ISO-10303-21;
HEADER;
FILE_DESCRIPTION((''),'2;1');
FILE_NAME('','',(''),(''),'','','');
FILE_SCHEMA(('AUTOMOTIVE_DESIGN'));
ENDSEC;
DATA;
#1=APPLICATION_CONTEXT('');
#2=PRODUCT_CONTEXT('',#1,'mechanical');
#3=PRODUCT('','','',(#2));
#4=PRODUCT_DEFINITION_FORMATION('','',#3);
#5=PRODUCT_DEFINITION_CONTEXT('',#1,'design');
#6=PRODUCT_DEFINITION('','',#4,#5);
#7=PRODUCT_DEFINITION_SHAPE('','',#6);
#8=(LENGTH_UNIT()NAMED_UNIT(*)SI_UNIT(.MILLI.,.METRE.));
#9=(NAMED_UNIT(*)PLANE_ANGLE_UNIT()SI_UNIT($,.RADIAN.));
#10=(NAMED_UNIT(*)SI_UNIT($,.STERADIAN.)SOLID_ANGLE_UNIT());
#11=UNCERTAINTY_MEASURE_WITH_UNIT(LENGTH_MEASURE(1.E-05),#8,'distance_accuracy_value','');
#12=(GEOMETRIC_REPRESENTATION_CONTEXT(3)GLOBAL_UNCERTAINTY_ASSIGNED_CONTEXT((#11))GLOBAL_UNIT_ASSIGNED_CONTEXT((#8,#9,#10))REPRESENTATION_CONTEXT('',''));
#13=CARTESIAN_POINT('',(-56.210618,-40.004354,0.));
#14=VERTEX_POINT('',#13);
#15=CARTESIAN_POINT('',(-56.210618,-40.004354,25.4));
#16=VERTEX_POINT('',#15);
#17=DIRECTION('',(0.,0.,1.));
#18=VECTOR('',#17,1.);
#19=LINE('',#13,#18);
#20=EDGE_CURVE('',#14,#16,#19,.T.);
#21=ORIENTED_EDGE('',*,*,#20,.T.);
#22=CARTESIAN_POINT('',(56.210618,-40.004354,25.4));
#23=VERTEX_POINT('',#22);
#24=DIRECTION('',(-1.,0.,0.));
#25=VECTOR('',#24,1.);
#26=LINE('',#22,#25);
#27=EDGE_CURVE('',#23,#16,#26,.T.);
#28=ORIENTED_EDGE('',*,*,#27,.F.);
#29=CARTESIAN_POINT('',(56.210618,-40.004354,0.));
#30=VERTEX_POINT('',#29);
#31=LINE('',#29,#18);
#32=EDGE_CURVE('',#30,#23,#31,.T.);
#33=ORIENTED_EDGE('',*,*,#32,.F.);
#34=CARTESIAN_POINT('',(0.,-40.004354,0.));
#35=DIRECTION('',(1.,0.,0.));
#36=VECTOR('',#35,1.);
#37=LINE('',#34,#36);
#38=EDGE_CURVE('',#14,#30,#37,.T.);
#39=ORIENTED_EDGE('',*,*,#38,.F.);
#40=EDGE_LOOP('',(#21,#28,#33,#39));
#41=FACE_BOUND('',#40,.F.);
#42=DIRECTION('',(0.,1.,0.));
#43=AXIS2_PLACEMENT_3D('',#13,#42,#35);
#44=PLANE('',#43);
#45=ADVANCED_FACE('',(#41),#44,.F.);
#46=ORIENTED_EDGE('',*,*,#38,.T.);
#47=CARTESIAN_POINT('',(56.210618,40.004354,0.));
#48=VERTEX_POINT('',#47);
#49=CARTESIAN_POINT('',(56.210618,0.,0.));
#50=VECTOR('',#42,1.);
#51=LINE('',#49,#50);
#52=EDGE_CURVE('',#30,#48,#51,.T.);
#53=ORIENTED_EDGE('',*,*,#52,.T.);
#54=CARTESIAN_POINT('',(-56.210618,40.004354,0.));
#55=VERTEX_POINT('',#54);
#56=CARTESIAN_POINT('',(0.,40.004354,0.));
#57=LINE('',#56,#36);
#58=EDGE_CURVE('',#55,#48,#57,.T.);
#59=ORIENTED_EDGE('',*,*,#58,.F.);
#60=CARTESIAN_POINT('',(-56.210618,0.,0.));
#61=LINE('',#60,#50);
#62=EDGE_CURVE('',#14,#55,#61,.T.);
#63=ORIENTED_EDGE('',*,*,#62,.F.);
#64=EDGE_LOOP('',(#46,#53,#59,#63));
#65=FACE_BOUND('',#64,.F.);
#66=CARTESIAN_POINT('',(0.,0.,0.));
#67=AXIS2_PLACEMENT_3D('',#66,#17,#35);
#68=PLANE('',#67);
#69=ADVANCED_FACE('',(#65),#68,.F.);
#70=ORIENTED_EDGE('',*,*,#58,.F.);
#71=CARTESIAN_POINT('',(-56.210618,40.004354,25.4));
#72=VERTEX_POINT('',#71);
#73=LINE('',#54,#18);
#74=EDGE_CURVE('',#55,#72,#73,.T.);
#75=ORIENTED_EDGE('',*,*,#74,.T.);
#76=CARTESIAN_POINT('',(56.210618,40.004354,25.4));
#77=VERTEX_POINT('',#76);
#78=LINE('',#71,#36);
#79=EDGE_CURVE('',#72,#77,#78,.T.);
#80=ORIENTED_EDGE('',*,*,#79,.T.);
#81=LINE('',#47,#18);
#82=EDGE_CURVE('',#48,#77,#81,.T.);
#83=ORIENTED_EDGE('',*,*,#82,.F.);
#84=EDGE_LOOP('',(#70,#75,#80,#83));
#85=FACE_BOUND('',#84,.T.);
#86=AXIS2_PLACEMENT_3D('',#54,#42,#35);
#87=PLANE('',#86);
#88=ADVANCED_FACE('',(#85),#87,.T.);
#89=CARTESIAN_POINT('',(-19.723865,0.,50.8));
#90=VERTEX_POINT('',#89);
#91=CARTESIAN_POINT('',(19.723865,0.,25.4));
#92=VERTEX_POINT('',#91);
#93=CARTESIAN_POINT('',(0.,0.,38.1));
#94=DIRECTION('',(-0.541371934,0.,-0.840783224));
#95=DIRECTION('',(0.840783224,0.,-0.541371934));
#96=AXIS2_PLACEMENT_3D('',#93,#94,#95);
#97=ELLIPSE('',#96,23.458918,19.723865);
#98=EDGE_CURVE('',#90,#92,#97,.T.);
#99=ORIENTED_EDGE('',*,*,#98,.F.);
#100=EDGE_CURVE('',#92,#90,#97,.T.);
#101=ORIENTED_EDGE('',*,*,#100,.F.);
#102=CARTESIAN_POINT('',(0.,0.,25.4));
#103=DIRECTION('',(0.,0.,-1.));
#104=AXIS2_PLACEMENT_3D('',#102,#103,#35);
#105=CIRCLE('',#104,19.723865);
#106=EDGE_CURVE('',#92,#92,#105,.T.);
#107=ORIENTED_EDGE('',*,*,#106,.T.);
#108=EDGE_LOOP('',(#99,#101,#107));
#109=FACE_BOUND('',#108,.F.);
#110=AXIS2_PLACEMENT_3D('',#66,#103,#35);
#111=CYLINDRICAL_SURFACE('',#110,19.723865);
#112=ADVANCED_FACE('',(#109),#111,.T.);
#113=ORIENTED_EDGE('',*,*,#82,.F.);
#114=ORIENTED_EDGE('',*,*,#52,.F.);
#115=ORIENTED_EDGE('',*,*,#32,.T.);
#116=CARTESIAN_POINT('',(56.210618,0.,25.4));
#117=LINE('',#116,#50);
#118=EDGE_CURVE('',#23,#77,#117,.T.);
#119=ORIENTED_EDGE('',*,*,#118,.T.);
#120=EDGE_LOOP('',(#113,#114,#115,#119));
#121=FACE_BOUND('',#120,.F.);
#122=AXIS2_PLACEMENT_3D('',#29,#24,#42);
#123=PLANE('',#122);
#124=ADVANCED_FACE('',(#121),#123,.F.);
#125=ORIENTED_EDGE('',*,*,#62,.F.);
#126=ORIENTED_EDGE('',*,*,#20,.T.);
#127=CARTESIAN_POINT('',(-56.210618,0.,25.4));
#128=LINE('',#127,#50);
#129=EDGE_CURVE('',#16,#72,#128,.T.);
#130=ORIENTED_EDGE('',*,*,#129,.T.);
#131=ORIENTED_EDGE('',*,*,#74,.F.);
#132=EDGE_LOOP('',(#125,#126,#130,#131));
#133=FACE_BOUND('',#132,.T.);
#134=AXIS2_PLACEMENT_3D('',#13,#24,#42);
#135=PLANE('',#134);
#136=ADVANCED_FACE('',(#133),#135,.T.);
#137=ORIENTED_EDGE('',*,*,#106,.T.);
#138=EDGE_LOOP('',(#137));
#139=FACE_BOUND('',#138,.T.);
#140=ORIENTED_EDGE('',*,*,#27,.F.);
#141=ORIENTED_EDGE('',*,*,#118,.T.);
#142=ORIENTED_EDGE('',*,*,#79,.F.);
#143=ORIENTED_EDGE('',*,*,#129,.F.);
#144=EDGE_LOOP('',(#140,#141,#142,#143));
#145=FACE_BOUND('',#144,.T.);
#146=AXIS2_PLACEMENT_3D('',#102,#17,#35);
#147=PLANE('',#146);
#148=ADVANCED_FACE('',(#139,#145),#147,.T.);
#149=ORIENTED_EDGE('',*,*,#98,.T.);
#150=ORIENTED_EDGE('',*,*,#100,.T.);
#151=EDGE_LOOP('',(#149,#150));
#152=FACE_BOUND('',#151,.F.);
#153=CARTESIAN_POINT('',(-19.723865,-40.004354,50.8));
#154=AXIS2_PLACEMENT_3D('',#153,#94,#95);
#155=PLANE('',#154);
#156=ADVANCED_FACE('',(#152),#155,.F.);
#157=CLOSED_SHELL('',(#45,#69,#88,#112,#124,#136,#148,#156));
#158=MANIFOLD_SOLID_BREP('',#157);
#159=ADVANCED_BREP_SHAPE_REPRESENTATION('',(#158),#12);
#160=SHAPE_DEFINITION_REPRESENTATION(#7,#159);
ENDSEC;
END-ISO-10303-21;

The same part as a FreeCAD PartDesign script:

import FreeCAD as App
import Part
import Sketcher
Q = App.Units.Quantity


def add_polygon(sketch, points):
    """Adds a closed chain of lines whose ends are joined by coincident constraints."""
    first, n = sketch.GeometryCount, len(points)
    for a, b in zip(points, points[1:] + points[:1]):
        sketch.addGeometry(Part.LineSegment(App.Vector(*a, 0), App.Vector(*b, 0)), False)
    for i in range(n):
        sketch.addConstraint(Sketcher.Constraint("Coincident", first + i, 2, first + (i + 1) % n, 1))

doc = App.newDocument("Part")
body = doc.addObject("PartDesign::Body", "Body")

sketch1 = body.newObject("Sketcher::SketchObject", "Sketch")
sketch1.AttachmentSupport = (doc.getObject("XY_Plane"), [""])
sketch1.MapMode = "FlatFace"
add_polygon(sketch1, [(-56, 40), (-56, -40), (56, -40), (56, 40)])
sketch1.addConstraint([
    Sketcher.Constraint("Vertical", 0),
    Sketcher.Constraint("Horizontal", 1),
    Sketcher.Constraint("Vertical", 2),
    Sketcher.Constraint("Horizontal", 3),
    Sketcher.Constraint("Symmetric", 0, 2, 2, 2, -1, 1),
    Sketcher.Constraint("DistanceY", 0, 2, 0, 1, Q("80.008708 mm")),
    Sketcher.Constraint("DistanceX", 1, 1, 1, 2, Q("112.421236 mm")),
])
pad1 = body.newObject("PartDesign::Pad", "Pad")
pad1.Profile = sketch1
pad1.Length = Q("1 in")

sketch2 = body.newObject("Sketcher::SketchObject", "Sketch001")
sketch2.AttachmentSupport = (doc.getObject("XY_Plane"), [""])
sketch2.MapMode = "FlatFace"
sketch2.addGeometry(Part.Circle(App.Vector(0, 0, 0), App.Vector(0, 0, 1), 20), False)
sketch2.addConstraint([
    Sketcher.Constraint("Coincident", 0, 3, -1, 1),
    Sketcher.Constraint("Diameter", 0, Q("39.44773 mm")),
])
pad2 = body.newObject("PartDesign::Pad", "Pad001")
pad2.Profile = sketch2
pad2.Length = Q("2 in")

sketch3 = body.newObject("Sketcher::SketchObject", "Sketch002")
sketch3.AttachmentSupport = (doc.getObject("XZ_Plane"), [""])
sketch3.MapMode = "FlatFace"
sketch3.AttachmentOffset = App.Placement(App.Vector(0, 0, 40.004354), App.Rotation())
add_polygon(sketch3, [(20, 51), (-20, 51), (20, 25)])
sketch3.addConstraint([
    Sketcher.Constraint("Horizontal", 0),
    Sketcher.Constraint("Vertical", 2),
    Sketcher.Constraint("DistanceY", 2, 1, 2, 2, Q("1 in")),
    Sketcher.Constraint("DistanceY", -1, 1, 0, 2, Q("2 in")),
    Sketcher.Constraint("DistanceX", 0, 2, 0, 1, Q("39.44773 mm")),
    Sketcher.Constraint("DistanceX", 0, 2, -1, 1, Q("19.723865 mm")),
])
pocket1 = body.newObject("PartDesign::Pocket", "Pocket")
pocket1.Profile = sketch3
pocket1.Type = "ThroughAll"

doc.recompute()
